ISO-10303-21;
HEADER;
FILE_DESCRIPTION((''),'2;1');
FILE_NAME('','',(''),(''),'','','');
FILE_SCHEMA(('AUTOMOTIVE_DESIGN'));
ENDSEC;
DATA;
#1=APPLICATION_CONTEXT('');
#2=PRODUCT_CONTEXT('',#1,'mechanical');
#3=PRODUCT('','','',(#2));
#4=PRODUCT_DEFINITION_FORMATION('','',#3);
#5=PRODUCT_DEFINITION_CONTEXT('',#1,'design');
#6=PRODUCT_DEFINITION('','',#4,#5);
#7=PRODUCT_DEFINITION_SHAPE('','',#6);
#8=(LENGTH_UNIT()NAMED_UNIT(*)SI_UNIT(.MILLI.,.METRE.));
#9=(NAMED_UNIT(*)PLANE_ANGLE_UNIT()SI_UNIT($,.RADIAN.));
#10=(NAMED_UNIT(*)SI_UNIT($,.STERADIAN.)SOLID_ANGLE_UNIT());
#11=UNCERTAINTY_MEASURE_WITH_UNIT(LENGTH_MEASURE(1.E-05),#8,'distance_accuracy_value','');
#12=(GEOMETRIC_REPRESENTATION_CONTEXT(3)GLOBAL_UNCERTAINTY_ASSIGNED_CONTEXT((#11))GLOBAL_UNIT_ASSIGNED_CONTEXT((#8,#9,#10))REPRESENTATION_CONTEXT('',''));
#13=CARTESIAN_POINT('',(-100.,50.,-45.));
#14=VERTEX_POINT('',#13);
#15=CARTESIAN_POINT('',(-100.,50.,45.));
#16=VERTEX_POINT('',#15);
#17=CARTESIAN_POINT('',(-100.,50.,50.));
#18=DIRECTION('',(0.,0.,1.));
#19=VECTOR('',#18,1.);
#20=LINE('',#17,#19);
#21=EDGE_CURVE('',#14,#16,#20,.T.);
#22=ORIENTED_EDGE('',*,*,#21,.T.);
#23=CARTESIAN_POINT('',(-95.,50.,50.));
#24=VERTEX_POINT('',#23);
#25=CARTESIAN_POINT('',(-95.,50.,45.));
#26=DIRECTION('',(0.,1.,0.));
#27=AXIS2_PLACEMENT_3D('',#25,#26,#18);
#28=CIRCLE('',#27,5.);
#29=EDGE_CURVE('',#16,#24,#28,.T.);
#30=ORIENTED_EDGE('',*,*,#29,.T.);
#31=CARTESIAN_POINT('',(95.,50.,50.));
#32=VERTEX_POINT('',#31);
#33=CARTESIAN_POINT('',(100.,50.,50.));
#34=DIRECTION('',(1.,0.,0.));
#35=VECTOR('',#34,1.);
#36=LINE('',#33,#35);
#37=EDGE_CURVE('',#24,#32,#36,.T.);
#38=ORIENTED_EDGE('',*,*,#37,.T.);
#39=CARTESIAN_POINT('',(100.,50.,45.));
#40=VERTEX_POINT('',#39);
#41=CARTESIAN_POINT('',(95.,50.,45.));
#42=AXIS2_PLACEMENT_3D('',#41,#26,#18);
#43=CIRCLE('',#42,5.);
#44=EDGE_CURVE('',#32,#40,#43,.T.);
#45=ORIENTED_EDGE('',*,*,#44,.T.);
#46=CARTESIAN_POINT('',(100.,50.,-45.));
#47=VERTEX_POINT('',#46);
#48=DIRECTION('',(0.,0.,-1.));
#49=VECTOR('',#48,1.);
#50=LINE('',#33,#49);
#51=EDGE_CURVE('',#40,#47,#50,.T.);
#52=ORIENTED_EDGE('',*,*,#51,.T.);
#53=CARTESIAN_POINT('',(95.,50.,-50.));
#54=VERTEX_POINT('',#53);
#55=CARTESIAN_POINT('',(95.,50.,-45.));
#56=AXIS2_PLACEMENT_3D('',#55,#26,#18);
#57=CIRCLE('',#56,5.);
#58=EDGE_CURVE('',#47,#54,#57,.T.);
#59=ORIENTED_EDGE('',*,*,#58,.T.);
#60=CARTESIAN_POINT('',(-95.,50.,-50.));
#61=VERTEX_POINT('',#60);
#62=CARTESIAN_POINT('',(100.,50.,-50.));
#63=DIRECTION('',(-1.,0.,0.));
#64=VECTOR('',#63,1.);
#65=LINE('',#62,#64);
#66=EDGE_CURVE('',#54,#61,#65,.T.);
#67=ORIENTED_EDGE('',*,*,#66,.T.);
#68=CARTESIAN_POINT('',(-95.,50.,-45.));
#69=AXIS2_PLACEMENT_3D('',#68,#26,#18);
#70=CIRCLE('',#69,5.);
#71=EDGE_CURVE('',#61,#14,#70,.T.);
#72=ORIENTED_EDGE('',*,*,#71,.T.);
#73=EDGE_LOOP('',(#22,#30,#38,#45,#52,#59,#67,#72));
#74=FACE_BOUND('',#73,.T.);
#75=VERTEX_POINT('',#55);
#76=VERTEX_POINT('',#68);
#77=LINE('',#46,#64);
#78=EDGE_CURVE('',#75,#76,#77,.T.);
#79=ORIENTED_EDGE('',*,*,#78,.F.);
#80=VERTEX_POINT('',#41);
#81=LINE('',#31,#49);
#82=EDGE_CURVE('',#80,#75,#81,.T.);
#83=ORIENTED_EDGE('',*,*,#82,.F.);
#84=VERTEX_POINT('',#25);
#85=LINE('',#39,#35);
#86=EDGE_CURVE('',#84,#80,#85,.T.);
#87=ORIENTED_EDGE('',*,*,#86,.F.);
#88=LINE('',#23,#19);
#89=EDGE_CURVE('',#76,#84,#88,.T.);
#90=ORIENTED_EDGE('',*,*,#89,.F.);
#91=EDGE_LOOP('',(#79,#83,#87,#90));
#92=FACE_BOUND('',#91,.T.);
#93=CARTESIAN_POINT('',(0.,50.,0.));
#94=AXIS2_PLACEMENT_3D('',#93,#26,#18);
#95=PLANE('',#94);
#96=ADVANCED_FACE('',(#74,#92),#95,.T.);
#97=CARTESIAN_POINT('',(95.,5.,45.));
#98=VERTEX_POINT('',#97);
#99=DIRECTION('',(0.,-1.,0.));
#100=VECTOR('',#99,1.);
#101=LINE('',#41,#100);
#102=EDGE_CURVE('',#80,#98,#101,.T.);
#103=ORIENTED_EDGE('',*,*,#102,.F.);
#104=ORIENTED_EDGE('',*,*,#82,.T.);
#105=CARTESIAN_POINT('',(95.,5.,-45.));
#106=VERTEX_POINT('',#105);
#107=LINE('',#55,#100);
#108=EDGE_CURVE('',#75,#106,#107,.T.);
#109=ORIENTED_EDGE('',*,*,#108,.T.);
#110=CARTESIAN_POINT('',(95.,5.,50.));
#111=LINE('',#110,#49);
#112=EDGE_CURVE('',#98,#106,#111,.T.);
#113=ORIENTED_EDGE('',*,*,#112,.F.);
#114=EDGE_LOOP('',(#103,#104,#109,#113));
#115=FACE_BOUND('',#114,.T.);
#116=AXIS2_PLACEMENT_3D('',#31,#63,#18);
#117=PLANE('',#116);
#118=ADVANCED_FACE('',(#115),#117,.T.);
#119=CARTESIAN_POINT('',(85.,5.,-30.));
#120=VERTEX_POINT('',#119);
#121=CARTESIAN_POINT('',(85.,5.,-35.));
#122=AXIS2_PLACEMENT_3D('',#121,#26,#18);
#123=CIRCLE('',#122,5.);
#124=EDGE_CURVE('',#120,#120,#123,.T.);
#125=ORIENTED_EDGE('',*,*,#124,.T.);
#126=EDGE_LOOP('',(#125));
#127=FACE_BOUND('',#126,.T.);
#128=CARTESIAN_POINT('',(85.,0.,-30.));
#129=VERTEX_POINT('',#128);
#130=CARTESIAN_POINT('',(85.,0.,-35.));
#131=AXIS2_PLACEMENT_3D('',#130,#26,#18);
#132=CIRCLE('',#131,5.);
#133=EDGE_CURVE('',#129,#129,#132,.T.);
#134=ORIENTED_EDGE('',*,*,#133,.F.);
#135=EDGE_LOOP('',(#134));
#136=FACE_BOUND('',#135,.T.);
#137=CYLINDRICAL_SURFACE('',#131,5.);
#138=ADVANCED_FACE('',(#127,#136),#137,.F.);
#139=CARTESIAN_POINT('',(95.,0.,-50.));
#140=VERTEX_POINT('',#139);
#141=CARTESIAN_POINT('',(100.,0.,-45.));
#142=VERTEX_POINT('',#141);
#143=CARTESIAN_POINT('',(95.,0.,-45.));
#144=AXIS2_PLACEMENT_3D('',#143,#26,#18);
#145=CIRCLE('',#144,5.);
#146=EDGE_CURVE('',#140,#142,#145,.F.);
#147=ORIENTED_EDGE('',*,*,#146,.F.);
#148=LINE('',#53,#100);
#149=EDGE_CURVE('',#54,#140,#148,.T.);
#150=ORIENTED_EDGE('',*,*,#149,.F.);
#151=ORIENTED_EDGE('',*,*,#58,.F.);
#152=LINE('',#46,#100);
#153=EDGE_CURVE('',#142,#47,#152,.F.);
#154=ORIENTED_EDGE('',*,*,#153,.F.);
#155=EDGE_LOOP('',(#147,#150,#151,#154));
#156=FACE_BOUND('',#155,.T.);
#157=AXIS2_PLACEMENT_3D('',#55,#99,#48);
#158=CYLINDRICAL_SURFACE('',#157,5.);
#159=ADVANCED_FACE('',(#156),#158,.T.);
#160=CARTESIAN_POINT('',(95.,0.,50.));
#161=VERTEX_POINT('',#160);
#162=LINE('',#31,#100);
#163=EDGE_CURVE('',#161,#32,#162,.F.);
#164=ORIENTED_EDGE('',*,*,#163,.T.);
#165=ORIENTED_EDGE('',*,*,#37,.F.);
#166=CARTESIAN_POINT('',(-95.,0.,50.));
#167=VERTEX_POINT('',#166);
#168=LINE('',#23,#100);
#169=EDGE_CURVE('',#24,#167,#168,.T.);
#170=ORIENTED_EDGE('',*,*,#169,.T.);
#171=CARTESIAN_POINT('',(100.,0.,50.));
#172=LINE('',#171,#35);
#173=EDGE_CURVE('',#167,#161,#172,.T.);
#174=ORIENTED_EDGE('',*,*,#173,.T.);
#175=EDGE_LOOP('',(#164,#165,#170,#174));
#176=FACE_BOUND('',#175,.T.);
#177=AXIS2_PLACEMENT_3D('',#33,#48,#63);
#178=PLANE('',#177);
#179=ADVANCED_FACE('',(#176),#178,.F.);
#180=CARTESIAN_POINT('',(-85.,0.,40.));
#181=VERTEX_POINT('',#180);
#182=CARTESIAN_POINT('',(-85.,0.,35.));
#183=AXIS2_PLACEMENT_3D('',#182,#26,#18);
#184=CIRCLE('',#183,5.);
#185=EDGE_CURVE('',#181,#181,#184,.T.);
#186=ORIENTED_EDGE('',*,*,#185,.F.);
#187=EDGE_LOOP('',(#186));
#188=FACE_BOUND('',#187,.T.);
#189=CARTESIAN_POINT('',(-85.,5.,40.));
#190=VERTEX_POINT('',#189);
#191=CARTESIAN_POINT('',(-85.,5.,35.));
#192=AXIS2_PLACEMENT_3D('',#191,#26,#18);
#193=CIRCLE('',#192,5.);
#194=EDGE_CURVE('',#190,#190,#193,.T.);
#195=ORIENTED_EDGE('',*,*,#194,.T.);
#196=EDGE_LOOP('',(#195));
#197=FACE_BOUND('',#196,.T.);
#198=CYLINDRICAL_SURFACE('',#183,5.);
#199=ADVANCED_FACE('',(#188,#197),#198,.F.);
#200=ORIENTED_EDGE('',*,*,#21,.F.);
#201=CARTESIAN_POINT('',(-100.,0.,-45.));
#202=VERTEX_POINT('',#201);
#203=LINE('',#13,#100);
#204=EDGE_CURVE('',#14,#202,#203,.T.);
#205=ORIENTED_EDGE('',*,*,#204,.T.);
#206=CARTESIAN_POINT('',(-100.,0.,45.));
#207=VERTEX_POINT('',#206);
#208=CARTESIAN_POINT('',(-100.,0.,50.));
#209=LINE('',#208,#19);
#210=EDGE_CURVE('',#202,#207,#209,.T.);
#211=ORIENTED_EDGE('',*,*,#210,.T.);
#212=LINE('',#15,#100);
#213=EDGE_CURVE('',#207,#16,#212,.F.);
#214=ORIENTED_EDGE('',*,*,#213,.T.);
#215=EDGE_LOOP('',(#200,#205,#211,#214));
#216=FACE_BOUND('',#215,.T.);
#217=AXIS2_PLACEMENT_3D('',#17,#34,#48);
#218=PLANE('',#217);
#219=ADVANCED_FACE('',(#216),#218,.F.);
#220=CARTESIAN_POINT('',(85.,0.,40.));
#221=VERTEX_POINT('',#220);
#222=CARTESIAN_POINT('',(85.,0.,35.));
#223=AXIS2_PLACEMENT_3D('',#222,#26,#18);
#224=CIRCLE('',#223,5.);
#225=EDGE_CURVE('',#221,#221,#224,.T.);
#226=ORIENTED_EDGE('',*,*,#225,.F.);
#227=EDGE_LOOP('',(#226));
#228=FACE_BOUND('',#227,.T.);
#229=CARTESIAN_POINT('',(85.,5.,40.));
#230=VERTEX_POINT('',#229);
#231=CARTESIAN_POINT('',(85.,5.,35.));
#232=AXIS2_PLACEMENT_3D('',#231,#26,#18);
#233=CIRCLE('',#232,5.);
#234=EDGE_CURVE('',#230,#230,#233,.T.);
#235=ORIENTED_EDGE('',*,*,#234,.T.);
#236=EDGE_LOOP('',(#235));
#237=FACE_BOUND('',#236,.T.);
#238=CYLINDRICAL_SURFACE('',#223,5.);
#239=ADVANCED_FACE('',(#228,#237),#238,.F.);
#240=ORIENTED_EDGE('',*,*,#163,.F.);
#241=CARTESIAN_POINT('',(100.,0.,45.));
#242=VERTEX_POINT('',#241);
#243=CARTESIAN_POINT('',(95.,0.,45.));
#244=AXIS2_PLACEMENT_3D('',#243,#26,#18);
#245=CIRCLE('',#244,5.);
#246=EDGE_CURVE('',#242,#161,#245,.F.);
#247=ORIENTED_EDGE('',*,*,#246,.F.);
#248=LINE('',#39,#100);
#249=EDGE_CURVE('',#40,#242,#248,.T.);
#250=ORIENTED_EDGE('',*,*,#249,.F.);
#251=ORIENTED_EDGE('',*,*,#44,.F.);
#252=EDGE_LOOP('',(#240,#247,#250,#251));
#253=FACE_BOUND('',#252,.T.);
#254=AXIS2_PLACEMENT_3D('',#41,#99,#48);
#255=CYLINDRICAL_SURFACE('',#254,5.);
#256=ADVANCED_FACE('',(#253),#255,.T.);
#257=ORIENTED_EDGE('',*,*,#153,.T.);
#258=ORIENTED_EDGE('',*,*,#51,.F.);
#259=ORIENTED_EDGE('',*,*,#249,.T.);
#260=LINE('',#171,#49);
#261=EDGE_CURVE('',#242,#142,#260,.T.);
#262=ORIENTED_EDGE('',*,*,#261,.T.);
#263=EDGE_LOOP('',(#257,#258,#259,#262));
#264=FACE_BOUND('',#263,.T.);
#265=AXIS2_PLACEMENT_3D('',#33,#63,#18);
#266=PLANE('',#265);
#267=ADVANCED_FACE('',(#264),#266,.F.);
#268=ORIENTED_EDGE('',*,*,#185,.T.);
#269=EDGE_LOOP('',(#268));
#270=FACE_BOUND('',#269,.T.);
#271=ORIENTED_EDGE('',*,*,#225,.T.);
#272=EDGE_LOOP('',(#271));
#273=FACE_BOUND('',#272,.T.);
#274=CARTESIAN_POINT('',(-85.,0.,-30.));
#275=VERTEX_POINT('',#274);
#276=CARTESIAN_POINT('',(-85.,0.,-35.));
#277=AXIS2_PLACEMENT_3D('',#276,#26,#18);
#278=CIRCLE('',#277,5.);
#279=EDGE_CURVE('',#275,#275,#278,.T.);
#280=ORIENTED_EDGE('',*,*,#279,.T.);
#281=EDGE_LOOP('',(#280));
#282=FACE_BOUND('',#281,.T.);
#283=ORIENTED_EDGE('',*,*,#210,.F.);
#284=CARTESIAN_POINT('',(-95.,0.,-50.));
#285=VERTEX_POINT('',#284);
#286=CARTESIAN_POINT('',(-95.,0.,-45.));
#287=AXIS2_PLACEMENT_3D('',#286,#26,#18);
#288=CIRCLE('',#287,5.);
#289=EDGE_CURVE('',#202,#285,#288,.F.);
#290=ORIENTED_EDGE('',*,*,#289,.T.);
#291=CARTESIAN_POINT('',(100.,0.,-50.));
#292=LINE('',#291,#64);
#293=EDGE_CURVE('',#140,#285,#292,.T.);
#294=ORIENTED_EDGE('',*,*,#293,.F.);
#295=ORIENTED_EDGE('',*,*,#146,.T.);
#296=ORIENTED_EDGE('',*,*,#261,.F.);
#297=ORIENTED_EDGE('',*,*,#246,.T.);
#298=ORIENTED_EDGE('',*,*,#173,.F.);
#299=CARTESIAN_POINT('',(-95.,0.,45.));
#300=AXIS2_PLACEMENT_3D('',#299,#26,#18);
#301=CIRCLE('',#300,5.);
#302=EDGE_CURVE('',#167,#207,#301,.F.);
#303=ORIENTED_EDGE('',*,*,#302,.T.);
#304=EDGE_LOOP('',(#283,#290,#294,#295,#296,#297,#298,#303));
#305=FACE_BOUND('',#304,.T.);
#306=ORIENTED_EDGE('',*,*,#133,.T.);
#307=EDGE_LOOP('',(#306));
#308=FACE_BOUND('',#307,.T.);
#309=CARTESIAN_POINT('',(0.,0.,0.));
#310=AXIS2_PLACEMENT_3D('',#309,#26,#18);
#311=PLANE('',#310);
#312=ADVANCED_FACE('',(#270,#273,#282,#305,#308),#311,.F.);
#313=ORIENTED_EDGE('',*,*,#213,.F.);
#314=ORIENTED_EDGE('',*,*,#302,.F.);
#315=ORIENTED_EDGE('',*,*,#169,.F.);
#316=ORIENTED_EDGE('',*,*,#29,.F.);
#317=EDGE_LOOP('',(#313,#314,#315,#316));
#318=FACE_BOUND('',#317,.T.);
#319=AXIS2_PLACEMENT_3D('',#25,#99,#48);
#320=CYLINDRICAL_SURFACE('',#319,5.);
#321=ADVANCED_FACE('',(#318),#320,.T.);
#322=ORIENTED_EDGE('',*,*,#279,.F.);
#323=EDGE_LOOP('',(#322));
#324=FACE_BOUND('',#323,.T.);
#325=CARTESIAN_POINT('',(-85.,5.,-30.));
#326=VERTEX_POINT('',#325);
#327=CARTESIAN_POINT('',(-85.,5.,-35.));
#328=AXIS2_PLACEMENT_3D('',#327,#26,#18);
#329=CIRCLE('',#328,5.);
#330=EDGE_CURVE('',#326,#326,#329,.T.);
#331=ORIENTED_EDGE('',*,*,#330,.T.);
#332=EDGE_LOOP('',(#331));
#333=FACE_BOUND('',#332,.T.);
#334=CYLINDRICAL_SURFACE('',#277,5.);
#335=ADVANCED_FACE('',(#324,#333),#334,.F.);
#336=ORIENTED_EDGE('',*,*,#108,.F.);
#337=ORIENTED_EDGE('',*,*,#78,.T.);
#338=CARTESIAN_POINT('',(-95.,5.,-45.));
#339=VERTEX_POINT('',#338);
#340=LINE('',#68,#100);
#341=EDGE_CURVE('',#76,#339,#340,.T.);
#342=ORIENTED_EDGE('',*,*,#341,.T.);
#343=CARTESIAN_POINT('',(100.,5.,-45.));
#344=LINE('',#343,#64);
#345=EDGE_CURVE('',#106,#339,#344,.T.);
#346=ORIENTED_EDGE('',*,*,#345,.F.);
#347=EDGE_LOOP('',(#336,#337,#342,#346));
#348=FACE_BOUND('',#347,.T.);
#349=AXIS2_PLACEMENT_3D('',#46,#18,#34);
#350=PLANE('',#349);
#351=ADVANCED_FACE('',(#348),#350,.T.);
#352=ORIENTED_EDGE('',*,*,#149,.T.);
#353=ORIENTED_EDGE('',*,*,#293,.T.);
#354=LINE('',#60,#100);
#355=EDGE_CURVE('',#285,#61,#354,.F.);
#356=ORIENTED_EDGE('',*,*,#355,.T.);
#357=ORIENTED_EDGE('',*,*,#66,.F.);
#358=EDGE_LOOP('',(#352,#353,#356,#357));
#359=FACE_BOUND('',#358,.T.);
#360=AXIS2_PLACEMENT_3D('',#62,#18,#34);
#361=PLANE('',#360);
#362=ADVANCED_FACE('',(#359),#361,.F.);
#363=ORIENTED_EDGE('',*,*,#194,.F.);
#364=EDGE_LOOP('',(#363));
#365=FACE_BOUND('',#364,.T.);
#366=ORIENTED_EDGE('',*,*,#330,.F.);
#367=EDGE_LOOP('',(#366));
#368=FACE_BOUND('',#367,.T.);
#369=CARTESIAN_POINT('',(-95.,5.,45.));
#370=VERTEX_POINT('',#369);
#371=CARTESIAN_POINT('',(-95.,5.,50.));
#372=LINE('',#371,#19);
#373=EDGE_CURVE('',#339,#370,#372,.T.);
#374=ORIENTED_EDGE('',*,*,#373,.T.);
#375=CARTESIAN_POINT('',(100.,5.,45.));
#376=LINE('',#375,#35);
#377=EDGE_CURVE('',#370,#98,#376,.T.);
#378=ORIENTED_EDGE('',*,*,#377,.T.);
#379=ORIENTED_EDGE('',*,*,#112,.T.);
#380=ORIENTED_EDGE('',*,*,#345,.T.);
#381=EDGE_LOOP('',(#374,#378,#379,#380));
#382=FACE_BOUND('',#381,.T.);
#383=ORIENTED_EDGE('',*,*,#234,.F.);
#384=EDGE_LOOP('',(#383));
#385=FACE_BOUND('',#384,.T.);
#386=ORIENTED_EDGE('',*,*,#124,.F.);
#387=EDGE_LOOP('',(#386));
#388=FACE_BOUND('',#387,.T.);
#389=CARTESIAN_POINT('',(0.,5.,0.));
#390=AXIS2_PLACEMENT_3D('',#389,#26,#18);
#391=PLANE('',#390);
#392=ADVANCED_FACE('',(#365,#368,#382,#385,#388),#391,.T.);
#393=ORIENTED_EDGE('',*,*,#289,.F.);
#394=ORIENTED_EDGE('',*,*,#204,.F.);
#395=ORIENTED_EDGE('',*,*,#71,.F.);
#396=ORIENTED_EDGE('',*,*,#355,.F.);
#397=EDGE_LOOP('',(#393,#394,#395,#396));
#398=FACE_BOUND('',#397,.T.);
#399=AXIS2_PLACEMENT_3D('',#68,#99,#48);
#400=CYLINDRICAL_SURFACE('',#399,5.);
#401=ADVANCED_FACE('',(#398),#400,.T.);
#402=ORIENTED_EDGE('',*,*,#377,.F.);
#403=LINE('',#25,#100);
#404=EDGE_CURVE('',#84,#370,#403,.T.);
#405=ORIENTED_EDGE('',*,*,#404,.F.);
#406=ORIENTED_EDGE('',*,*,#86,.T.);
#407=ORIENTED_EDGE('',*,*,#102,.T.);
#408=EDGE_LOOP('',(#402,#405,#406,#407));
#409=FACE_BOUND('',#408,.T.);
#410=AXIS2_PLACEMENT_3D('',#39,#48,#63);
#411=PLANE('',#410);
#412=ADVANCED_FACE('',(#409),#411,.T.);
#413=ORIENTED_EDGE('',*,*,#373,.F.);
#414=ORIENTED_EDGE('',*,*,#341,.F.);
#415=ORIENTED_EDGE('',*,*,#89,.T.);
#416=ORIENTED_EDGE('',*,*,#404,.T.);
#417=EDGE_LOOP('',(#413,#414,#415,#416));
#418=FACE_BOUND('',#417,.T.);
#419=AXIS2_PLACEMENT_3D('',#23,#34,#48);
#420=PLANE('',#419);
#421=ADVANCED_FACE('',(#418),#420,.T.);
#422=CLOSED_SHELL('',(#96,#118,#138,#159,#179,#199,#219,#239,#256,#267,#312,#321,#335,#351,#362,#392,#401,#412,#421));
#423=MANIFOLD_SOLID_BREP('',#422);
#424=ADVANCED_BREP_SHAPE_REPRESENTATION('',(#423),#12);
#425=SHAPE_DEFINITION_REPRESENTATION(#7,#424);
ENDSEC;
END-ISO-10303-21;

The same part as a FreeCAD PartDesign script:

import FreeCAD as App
import Part
import Sketcher
from FreeCAD import Vector
Q = App.Units.Quantity


def edges_at(feature, points):
    """Names of the edges that pass closest to the given points."""
    edges = feature.Shape.Edges
    near = lambda p: min(range(len(edges)), key=lambda i: edges[i].distToShape(Part.Vertex(*p))[0])
    return sorted({f"Edge{near(p) + 1}" for p in points})


def faces_at(feature, points):
    """Names of the faces that lie closest to the given points."""
    faces = feature.Shape.Faces
    near = lambda p: min(range(len(faces)), key=lambda i: faces[i].distToShape(Part.Vertex(*p))[0])
    return sorted({f"Face{near(p) + 1}" for p in points})


def add_polygon(sketch, points):
    """Adds a closed chain of lines whose ends are joined by coincident constraints."""
    first, n = sketch.GeometryCount, len(points)
    for a, b in zip(points, points[1:] + points[:1]):
        sketch.addGeometry(Part.LineSegment(App.Vector(*a, 0), App.Vector(*b, 0)), False)
    for i in range(n):
        sketch.addConstraint(Sketcher.Constraint("Coincident", first + i, 2, first + (i + 1) % n, 1))

doc = App.newDocument("Part")
params = doc.addObject("Spreadsheet::Sheet", "Params")
for row, (alias, value) in enumerate([
    ("sketch1_width", "200 mm"),
    ("sketch1_height", "100 mm"),
    ("pad1_length", "50 mm"),
    ("thickness_wall", "5 mm"),
    ("fillet_radius", "5 mm"),
    ("sketch2_diameter", "10 mm"),
], start=1):
    params.set(f"A{row}", alias)
    params.set(f"B{row}", "=" + value)
    params.setAlias(f"B{row}", alias)

body = doc.addObject("PartDesign::Body", "Body")

sketch1 = body.newObject("Sketcher::SketchObject", "Sketch")
sketch1.AttachmentSupport = (doc.getObject("XZ_Plane"), [""])
sketch1.MapMode = "FlatFace"
add_polygon(sketch1, [(-100, -50), (-100, 50), (100, 50), (100, -50)])
sketch1.addConstraint([
    Sketcher.Constraint("Vertical", 0),
    Sketcher.Constraint("Horizontal", 1),
    Sketcher.Constraint("Vertical", 2),
    Sketcher.Constraint("Horizontal", 3),
    Sketcher.Constraint("Symmetric", 0, 2, 2, 2, -1, 1),
    Sketcher.Constraint("DistanceX", 1, 1, 1, 2, Q("200 mm")),
    Sketcher.Constraint("DistanceY", 0, 1, 0, 2, Q("100 mm")),
])
sketch1.setExpression("Constraints[9]", "Params.sketch1_width")
sketch1.setExpression("Constraints[10]", "Params.sketch1_height")
pad1 = body.newObject("PartDesign::Pad", "Pad")
pad1.Profile = sketch1
pad1.setExpression("Length", "Params.pad1_length")
pad1.Reversed = True
doc.recompute()

thickness = body.newObject("PartDesign::Thickness", "Thickness")
thickness.Base = (pad1, faces_at(pad1, [(0, 50, 0)]))
thickness.setExpression("Value", "Params.thickness_wall")
thickness.Reversed = True
thickness.Join = "Intersection"
doc.recompute()

fillet = body.newObject("PartDesign::Fillet", "Fillet")
fillet.Base = (thickness, edges_at(thickness, [
    (-100, 25, -50),
    (100, 25, -50),
    (100, 25, 50),
    (-100, 25, 50),
]))
fillet.setExpression("Radius", "Params.fillet_radius")

sketch2 = body.newObject("Sketcher::SketchObject", "Sketch001")
sketch2.AttachmentSupport = (doc.getObject("XZ_Plane"), [""])
sketch2.MapMode = "FlatFace"
sketch2.AttachmentOffset = App.Placement(Vector(0, 0, -5), App.Rotation())
sketch2.addGeometry([
    Part.Circle(Vector(-85, -35, 0), Vector(0, 0, 1), 5),
    Part.Circle(Vector(85, -35, 0), Vector(0, 0, 1), 5),
    Part.Circle(Vector(85, 35, 0), Vector(0, 0, 1), 5),
    Part.Circle(Vector(-85, 35, 0), Vector(0, 0, 1), 5),
], False)
sketch2.addConstraint([
    Sketcher.Constraint("Equal", 0, 1),
    Sketcher.Constraint("Equal", 1, 2),
    Sketcher.Constraint("Equal", 2, 3),
    Sketcher.Constraint("Symmetric", 0, 3, 2, 3, -1, 1),
    Sketcher.Constraint("Symmetric", 1, 3, 3, 3, -1, 1),
    Sketcher.Constraint("Symmetric", 0, 3, 1, 3, -2),
    Sketcher.Constraint("Diameter", 0, Q("10 mm")),
    Sketcher.Constraint("DistanceX", 0, 3, -1, 1, Q("85 mm")),
    Sketcher.Constraint("DistanceY", 0, 3, -1, 1, Q("35 mm")),
])
sketch2.setExpression("Constraints[6]", "Params.sketch2_diameter")
pocket1 = body.newObject("PartDesign::Pocket", "Pocket")
pocket1.Profile = sketch2
pocket1.Type = "ThroughAll"
pocket1.Reversed = True

doc.recompute()
